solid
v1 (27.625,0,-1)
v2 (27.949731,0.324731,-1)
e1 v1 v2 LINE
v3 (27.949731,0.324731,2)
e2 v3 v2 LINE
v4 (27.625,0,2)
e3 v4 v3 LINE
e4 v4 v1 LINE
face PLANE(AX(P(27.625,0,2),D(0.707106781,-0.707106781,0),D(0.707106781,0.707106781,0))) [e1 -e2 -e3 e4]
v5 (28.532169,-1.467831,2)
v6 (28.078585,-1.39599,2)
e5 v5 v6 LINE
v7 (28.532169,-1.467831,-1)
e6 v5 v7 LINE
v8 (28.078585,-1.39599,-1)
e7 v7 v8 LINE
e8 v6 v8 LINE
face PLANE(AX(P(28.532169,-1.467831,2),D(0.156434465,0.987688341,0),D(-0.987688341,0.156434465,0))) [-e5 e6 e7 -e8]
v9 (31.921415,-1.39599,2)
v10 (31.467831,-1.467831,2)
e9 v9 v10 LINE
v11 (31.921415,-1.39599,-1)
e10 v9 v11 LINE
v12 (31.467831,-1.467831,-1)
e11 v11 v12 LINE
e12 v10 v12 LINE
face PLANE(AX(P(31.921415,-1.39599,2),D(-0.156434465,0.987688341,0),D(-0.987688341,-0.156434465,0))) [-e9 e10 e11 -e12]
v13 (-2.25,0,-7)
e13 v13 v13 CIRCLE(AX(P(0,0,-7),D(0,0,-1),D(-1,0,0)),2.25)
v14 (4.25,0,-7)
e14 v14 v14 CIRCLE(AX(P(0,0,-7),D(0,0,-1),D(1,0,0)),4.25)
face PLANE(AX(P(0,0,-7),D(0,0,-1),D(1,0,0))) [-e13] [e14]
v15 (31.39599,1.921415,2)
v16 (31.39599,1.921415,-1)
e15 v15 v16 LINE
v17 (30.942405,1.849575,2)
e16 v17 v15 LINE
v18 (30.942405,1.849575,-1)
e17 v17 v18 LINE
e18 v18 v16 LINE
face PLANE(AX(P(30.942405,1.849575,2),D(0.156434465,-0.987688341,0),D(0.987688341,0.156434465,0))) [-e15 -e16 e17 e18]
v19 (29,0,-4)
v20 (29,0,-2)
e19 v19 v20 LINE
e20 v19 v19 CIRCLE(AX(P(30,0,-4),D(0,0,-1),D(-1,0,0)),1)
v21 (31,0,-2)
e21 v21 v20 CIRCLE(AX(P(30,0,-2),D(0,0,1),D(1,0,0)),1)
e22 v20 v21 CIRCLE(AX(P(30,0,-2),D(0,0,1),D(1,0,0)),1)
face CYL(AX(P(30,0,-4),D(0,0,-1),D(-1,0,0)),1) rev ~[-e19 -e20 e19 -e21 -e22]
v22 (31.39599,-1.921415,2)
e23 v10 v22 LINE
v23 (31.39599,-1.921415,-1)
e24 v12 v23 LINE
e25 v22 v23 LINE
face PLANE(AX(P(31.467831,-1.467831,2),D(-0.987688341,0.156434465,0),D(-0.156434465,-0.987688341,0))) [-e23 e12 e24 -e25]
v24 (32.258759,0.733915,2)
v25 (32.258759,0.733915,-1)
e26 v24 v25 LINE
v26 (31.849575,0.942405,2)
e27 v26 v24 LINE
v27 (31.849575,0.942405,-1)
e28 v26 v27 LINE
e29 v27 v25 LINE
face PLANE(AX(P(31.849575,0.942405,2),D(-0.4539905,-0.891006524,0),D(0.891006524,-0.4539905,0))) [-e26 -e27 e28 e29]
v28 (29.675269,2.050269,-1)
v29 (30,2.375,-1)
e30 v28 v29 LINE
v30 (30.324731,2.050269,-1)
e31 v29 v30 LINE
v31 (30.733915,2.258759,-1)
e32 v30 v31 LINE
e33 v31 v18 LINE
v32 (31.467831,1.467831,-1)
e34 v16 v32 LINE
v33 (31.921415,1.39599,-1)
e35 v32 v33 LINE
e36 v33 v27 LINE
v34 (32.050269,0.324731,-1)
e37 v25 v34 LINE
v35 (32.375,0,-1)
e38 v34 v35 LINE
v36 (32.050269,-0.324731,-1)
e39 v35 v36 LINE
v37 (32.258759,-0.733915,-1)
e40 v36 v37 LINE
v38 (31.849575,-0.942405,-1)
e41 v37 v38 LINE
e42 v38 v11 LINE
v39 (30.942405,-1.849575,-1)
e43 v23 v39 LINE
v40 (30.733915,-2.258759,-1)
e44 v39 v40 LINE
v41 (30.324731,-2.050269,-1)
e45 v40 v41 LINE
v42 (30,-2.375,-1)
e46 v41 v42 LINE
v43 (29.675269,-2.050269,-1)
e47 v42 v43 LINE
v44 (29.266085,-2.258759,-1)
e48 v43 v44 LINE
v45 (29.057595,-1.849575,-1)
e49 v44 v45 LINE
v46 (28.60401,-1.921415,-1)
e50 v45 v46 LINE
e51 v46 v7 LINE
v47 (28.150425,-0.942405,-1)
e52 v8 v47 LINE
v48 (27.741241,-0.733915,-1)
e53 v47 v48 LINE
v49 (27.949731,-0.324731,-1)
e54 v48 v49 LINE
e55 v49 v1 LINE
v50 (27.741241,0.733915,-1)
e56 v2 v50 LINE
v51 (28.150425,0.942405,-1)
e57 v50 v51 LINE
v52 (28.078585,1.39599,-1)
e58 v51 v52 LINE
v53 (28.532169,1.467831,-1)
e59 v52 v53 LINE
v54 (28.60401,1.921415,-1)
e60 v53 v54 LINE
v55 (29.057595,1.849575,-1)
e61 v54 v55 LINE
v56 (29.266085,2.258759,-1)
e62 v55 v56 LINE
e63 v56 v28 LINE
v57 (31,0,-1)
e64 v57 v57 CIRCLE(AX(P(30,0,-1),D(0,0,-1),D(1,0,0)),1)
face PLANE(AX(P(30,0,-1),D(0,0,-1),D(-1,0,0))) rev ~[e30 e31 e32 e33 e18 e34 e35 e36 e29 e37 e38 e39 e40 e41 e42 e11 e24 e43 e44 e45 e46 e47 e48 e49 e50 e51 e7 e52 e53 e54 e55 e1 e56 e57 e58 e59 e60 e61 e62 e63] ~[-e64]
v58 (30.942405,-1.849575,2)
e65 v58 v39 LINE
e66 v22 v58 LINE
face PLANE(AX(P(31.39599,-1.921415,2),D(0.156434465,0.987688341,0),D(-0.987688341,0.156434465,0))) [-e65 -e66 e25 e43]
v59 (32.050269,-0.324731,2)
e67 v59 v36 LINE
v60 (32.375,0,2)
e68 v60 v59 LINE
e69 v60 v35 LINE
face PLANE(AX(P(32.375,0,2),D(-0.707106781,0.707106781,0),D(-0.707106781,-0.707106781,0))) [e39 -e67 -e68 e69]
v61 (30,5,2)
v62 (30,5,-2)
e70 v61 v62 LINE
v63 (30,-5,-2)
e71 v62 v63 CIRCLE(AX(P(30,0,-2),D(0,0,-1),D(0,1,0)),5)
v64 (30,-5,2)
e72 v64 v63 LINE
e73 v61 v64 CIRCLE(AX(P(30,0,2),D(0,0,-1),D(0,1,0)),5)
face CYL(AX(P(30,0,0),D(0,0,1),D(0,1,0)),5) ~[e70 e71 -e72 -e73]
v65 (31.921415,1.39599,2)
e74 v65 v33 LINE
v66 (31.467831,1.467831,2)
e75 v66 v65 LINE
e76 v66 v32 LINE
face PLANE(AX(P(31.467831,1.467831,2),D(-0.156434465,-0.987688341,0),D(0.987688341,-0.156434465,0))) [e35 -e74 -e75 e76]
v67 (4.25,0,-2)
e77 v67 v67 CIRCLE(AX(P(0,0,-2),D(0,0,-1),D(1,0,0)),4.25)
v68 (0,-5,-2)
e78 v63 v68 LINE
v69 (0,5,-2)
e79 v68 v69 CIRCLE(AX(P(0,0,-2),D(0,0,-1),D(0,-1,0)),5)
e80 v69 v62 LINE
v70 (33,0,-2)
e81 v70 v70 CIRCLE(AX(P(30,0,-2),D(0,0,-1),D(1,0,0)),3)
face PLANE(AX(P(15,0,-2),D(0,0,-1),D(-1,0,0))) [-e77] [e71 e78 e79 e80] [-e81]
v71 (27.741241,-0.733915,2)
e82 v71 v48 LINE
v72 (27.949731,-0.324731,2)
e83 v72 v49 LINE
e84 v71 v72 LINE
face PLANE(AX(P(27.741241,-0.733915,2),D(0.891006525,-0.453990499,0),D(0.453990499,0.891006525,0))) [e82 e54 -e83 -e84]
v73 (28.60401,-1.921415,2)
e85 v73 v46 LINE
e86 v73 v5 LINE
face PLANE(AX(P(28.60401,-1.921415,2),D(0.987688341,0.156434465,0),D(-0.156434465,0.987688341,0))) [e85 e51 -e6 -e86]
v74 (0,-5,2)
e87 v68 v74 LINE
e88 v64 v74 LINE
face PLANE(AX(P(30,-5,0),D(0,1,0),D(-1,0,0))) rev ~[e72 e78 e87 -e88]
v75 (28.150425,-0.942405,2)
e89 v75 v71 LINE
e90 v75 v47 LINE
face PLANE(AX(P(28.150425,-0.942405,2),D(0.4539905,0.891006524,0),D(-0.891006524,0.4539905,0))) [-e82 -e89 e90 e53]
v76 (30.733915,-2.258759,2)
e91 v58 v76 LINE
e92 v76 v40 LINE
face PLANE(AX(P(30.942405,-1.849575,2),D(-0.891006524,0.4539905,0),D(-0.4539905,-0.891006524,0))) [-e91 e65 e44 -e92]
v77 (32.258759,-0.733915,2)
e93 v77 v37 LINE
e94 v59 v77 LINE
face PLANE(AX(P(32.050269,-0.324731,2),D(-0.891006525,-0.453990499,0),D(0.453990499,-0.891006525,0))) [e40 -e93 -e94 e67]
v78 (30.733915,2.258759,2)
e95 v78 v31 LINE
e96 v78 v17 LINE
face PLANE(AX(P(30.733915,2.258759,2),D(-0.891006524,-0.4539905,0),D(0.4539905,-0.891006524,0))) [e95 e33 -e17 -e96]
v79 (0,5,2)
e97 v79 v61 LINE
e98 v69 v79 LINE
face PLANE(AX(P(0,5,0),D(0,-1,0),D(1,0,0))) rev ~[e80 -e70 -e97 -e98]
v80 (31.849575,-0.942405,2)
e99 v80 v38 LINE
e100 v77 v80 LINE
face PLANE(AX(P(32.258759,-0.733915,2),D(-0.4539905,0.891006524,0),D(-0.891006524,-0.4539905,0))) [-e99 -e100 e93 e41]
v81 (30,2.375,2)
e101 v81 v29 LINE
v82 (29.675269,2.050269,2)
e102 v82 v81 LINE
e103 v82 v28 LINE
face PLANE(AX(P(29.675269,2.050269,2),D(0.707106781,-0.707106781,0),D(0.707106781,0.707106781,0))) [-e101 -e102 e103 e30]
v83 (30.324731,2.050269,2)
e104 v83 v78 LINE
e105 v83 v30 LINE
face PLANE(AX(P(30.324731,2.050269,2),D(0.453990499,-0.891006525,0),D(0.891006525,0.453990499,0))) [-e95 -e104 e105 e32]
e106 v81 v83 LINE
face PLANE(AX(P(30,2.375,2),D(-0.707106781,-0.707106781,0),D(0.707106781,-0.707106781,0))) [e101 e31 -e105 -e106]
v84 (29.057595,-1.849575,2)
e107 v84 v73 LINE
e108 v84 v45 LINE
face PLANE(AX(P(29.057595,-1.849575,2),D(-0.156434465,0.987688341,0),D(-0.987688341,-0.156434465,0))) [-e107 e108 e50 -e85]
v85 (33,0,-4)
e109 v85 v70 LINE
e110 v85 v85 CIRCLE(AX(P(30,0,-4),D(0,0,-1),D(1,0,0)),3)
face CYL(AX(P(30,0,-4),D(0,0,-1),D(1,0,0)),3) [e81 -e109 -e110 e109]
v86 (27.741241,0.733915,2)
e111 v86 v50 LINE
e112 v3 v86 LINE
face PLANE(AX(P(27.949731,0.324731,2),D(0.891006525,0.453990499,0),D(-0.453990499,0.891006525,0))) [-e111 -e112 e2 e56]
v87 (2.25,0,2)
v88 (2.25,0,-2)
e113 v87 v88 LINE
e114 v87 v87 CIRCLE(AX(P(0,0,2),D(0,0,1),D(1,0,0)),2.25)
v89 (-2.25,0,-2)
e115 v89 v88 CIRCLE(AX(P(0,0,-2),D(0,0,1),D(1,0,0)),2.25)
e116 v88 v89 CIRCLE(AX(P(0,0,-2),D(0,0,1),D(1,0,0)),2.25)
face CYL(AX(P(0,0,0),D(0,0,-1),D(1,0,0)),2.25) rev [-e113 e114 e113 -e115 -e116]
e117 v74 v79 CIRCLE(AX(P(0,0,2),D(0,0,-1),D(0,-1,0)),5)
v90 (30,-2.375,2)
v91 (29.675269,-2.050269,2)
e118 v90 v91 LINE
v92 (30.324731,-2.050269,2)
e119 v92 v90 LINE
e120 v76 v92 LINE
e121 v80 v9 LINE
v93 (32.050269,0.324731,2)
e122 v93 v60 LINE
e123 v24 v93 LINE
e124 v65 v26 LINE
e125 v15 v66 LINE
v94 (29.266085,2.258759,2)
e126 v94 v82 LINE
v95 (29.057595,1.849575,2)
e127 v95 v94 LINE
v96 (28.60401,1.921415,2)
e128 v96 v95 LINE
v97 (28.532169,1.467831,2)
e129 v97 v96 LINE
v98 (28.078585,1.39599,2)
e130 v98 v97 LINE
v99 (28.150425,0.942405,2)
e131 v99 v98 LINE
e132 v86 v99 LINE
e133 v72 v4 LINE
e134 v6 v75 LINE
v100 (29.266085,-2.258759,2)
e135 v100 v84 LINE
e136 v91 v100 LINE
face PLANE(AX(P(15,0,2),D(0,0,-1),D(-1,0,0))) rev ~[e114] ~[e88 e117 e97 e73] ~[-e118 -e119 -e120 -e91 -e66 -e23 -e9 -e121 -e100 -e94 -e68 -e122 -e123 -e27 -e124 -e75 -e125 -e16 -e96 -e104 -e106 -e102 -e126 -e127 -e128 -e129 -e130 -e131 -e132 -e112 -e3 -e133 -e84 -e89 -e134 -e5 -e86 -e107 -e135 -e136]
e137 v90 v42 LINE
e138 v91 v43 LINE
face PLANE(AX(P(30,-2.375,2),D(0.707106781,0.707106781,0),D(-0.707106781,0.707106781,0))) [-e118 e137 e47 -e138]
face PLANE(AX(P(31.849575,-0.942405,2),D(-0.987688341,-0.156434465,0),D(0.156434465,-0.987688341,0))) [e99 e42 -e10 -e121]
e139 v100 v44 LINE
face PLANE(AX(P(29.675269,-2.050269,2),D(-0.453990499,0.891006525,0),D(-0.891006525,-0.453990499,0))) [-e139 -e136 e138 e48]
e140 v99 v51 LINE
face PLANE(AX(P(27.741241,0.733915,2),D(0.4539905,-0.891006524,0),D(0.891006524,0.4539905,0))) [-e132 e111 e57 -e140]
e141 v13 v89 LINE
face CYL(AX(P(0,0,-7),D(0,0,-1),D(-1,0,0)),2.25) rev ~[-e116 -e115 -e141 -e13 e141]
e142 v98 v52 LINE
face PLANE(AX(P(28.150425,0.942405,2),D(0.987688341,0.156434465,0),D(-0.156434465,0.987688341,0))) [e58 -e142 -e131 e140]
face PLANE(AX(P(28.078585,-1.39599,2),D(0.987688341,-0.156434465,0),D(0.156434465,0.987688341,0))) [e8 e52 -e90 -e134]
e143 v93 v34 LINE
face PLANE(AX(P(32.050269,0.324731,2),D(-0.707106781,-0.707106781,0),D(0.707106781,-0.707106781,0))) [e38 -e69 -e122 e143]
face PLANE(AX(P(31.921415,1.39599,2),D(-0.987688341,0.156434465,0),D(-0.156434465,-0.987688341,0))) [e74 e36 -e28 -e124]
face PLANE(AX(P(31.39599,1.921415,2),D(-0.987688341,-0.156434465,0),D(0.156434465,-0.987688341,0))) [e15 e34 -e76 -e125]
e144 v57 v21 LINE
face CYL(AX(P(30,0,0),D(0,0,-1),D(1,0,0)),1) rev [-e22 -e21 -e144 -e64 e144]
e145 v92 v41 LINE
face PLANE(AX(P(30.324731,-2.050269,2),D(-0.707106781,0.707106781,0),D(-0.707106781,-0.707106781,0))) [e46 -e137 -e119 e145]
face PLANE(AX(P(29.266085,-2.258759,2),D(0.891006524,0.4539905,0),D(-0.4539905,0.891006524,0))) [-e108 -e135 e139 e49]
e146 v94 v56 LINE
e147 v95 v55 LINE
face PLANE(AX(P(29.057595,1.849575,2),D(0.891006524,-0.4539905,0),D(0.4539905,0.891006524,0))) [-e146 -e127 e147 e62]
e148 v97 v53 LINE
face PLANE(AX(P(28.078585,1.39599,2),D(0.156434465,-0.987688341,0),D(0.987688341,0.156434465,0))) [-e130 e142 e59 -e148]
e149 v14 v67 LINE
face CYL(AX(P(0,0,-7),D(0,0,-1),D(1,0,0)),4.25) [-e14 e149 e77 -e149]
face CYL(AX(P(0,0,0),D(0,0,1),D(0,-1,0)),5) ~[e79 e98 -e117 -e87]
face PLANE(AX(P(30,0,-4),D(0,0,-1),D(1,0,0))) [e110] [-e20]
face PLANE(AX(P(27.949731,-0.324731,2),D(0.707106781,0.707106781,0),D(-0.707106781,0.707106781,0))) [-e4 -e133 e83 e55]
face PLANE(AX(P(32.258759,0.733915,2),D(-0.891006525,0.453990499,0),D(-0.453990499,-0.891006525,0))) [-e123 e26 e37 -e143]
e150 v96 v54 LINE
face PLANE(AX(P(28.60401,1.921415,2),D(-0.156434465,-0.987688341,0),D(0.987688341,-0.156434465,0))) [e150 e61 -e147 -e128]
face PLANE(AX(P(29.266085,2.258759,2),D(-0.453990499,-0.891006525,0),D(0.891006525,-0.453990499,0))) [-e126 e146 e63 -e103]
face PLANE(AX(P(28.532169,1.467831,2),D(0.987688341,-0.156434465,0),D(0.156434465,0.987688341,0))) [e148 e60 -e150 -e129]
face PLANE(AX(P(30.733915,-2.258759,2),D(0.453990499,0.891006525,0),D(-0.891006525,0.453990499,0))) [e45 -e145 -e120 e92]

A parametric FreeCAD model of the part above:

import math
import FreeCAD as App
import Part
import Sketcher

V = App.Vector
Q = App.Units.Quantity


def add_polygon(sketch, points):
    """Adds a closed chain of lines whose ends are joined by coincident constraints."""
    first, n = sketch.GeometryCount, len(points)
    for a, b in zip(points, points[1:] + points[:1]):
        sketch.addGeometry(Part.LineSegment(App.Vector(*a, 0), App.Vector(*b, 0)), False)
    for i in range(n):
        sketch.addConstraint(Sketcher.Constraint("Coincident", first + i, 2, first + (i + 1) % n, 1))

doc = App.newDocument("Part")
body = doc.addObject("PartDesign::Body", "Body")

# Sketch on XY plane
sketch1 = body.newObject("Sketcher::SketchObject", "Sketch")
sketch1.AttachmentSupport = (doc.getObject("XY_Plane"), [""])
sketch1.MapMode = "FlatFace"
sketch1.addGeometry(Part.LineSegment(V(30, 5, 0), V(0, 5, 0)), False)
sketch1.addGeometry(Part.ArcOfCircle(Part.Circle(V(0, 0, 0), V(0, 0, 1), 5), math.radians(90), math.radians(270)), False)
sketch1.addGeometry(Part.LineSegment(V(0, -5, 0), V(30, -5, 0)), False)
sketch1.addGeometry(Part.ArcOfCircle(Part.Circle(V(30, 0, 0), V(0, 0, 1), 5), math.radians(-90), math.radians(90)), False)
sketch1.addGeometry(Part.Circle(V(30, 0, 0), V(0, 0, 1), 1), False)
sketch1.addGeometry(Part.Circle(V(0, 0, 0), V(0, 0, 1), 2.25), False)
sketch1.addConstraint(Sketcher.Constraint("Tangent", 0, 2, 1, 1))
sketch1.addConstraint(Sketcher.Constraint("Tangent", 1, 2, 2, 1))
sketch1.addConstraint(Sketcher.Constraint("Tangent", 2, 2, 3, 1))
sketch1.addConstraint(Sketcher.Constraint("Tangent", 3, 2, 0, 1))
sketch1.addConstraint(Sketcher.Constraint("Horizontal", 0))
sketch1.addConstraint(Sketcher.Constraint("Horizontal", 2))
sketch1.addConstraint(Sketcher.Constraint("Coincident", 1, 3, -1, 1))
sketch1.addConstraint(Sketcher.Constraint("Coincident", 5, 3, -1, 1))
sketch1.addConstraint(Sketcher.Constraint("Coincident", 4, 3, 3, 3))
sketch1.addConstraint(Sketcher.Constraint("Diameter", 4, 2.0))
sketch1.addConstraint(Sketcher.Constraint("Radius", 1, 5.0))
sketch1.addConstraint(Sketcher.Constraint("Diameter", 5, 4.5))
sketch1.addConstraint(Sketcher.Constraint("DistanceX", 0, 2, 0, 1, 30.0))
pad1 = body.newObject("PartDesign::Pad", "Pad")
pad1.Profile = sketch1
pad1.Length = 4
pad1.Midplane = True

# Sketch on XY plane
sketch2 = body.newObject("Sketcher::SketchObject", "Sketch001")
sketch2.AttachmentSupport = (doc.getObject("XY_Plane"), [""])
sketch2.MapMode = "FlatFace"
sketch2.AttachmentOffset = App.Placement(V(0, 0, -4), App.Rotation())
sketch2.addGeometry(Part.Circle(V(30, 0, 0), V(0, 0, 1), 3), False)
sketch2.addGeometry(Part.Circle(V(30, 0, 0), V(0, 0, 1), 1), False)
sketch2.addConstraint(Sketcher.Constraint("Coincident", 1, 3, 0, 3))
sketch2.addConstraint(Sketcher.Constraint("PointOnObject", 0, 3, -1))
sketch2.addConstraint(Sketcher.Constraint("Diameter", 0, 6.0))
sketch2.addConstraint(Sketcher.Constraint("Diameter", 1, 2.0))
sketch2.addConstraint(Sketcher.Constraint("DistanceX", -1, 1, 0, 3, 30.0))
pad2 = body.newObject("PartDesign::Pad", "Pad001")
pad2.Profile = sketch2
pad2.Length = 2

# Sketch on XY plane
sketch3 = body.newObject("Sketcher::SketchObject", "Sketch002")
sketch3.AttachmentSupport = (doc.getObject("XY_Plane"), [""])
sketch3.MapMode = "FlatFace"
sketch3.AttachmentOffset = App.Placement(V(0, 0, -7), App.Rotation())
sketch3.addGeometry(Part.Circle(V(0, 0, 0), V(0, 0, 1), 4.25), False)
sketch3.addGeometry(Part.Circle(V(0, 0, 0), V(0, 0, 1), 2.25), False)
sketch3.addConstraint(Sketcher.Constraint("Coincident", 0, 3, -1, 1))
sketch3.addConstraint(Sketcher.Constraint("Coincident", 1, 3, -1, 1))
sketch3.addConstraint(Sketcher.Constraint("Diameter", 0, 8.5))
sketch3.addConstraint(Sketcher.Constraint("Diameter", 1, 4.5))
pad3 = body.newObject("PartDesign::Pad", "Pad002")
pad3.Profile = sketch3
pad3.Length = 5

# Sketch on XY plane
sketch4 = body.newObject("Sketcher::SketchObject", "Sketch003")
sketch4.AttachmentSupport = (doc.getObject("XY_Plane"), [""])
sketch4.MapMode = "FlatFace"
sketch4.AttachmentOffset = App.Placement(V(0, 0, 2), App.Rotation())
add_polygon(sketch4, [(30, 2.375), (29.675269, 2.050269), (29.266085, 2.258759), (29.057595, 1.849575), (28.60401, 1.921415), (28.532169, 1.467831), (28.078585, 1.39599), (28.150425, 0.942405), (27.741241, 0.733915), (27.949731, 0.324731), (27.625, 0), (27.949731, -0.324731), (27.741241, -0.733915), (28.150425, -0.942405), (28.078585, -1.39599), (28.532169, -1.467831), (28.60401, -1.921415), (29.057595, -1.849575), (29.266085, -2.258759), (29.675269, -2.050269), (30, -2.375), (30.324731, -2.050269), (30.733915, -2.258759), (30.942405, -1.849575), (31.39599, -1.921415), (31.467831, -1.467831), (31.921415, -1.39599), (31.849575, -0.942405), (32.258759, -0.733915), (32.050269, -0.324731), (32.375, 0), (32.050269, 0.324731), (32.258759, 0.733915), (31.849575, 0.942405), (31.921415, 1.39599), (31.467831, 1.467831), (31.39599, 1.921415), (30.942405, 1.849575), (30.733915, 2.258759), (30.324731, 2.050269)])  # lines 0-39
sketch4.addConstraint(Sketcher.Constraint("Symmetric", 8, 2, 10, 2, -1))
sketch4.addConstraint(Sketcher.Constraint("Symmetric", 7, 2, 11, 2, -1))
sketch4.addConstraint(Sketcher.Constraint("Symmetric", 6, 2, 12, 2, -1))
sketch4.addConstraint(Sketcher.Constraint("Symmetric", 5, 2, 13, 2, -1))
sketch4.addConstraint(Sketcher.Constraint("Symmetric", 4, 2, 14, 2, -1))
sketch4.addConstraint(Sketcher.Constraint("Symmetric", 3, 2, 15, 2, -1))
sketch4.addConstraint(Sketcher.Constraint("Symmetric", 2, 2, 16, 2, -1))
sketch4.addConstraint(Sketcher.Constraint("Symmetric", 1, 2, 17, 2, -1))
sketch4.addConstraint(Sketcher.Constraint("Symmetric", 0, 2, 18, 2, -1))
sketch4.addConstraint(Sketcher.Constraint("Symmetric", 28, 2, 30, 2, -1))
sketch4.addConstraint(Sketcher.Constraint("Symmetric", 27, 2, 31, 2, -1))
sketch4.addConstraint(Sketcher.Constraint("Symmetric", 26, 2, 32, 2, -1))
sketch4.addConstraint(Sketcher.Constraint("Symmetric", 25, 2, 33, 2, -1))
sketch4.addConstraint(Sketcher.Constraint("Symmetric", 24, 2, 34, 2, -1))
sketch4.addConstraint(Sketcher.Constraint("Symmetric", 23, 2, 35, 2, -1))
sketch4.addConstraint(Sketcher.Constraint("Symmetric", 22, 2, 36, 2, -1))
sketch4.addConstraint(Sketcher.Constraint("Symmetric", 21, 2, 37, 2, -1))
sketch4.addConstraint(Sketcher.Constraint("Symmetric", 20, 2, 38, 2, -1))
sketch4.addConstraint(Sketcher.Constraint("Symmetric", 19, 2, 39, 2, -1))
sketch4.addConstraint(Sketcher.Constraint("PointOnObject", 9, 2, -1))
sketch4.addConstraint(Sketcher.Constraint("PointOnObject", 29, 2, -1))
sketch4.addConstraint(Sketcher.Constraint("Perpendicular", 1, 2))
sketch4.addConstraint(Sketcher.Constraint("Perpendicular", 3, 4))
sketch4.addConstraint(Sketcher.Constraint("Perpendicular", 5, 6))
sketch4.addConstraint(Sketcher.Constraint("Perpendicular", 7, 8))
sketch4.addConstraint(Sketcher.Constraint("Parallel", 0, 9))
sketch4.addConstraint(Sketcher.Constraint("Perpendicular", 9, 10))
sketch4.addConstraint(Sketcher.Constraint("Parallel", 2, 11))
sketch4.addConstraint(Sketcher.Constraint("Parallel", 4, 13))
sketch4.addConstraint(Sketcher.Constraint("Perpendicular", 19, 20))
sketch4.addConstraint(Sketcher.Constraint("Parallel", 12, 21))
sketch4.addConstraint(Sketcher.Constraint("Perpendicular", 21, 22))
sketch4.addConstraint(Sketcher.Constraint("Parallel", 14, 23))
sketch4.addConstraint(Sketcher.Constraint("Perpendicular", 23, 24))
sketch4.addConstraint(Sketcher.Constraint("Parallel", 16, 25))
sketch4.addConstraint(Sketcher.Constraint("Perpendicular", 25, 26))
sketch4.addConstraint(Sketcher.Constraint("Parallel", 18, 27))
sketch4.addConstraint(Sketcher.Constraint("Perpendicular", 27, 28))
sketch4.addConstraint(Sketcher.Constraint("Parallel", 20, 29))
sketch4.addConstraint(Sketcher.Constraint("Horizontal", 18, 2, 20, 2))
sketch4.addConstraint(Sketcher.Constraint("Horizontal", 17, 2, 21, 2))
sketch4.addConstraint(Sketcher.Constraint("Horizontal", 16, 2, 22, 2))
sketch4.addConstraint(Sketcher.Constraint("Horizontal", 15, 2, 23, 2))
sketch4.addConstraint(Sketcher.Constraint("Horizontal", 14, 2, 24, 2))
sketch4.addConstraint(Sketcher.Constraint("Horizontal", 13, 2, 25, 2))
sketch4.addConstraint(Sketcher.Constraint("Horizontal", 12, 2, 26, 2))
sketch4.addConstraint(Sketcher.Constraint("Horizontal", 11, 2, 27, 2))
sketch4.addConstraint(Sketcher.Constraint("Horizontal", 10, 2, 28, 2))
sketch4.addConstraint(Sketcher.Constraint("Equal", 0, 1))
sketch4.addConstraint(Sketcher.Constraint("Equal", 1, 2))
sketch4.addConstraint(Sketcher.Constraint("Equal", 2, 3))
sketch4.addConstraint(Sketcher.Constraint("Equal", 3, 4))
sketch4.addConstraint(Sketcher.Constraint("Equal", 4, 5))
sketch4.addConstraint(Sketcher.Constraint("Equal", 5, 6))
sketch4.addConstraint(Sketcher.Constraint("Equal", 6, 7))
sketch4.addConstraint(Sketcher.Constraint("Equal", 7, 8))
sketch4.addConstraint(Sketcher.Constraint("Equal", 8, 9))
sketch4.addConstraint(Sketcher.Constraint("Angle", 1, Q("153 deg")))
sketch4.addConstraint(Sketcher.Constraint("Angle", 3, Q("171 deg")))
sketch4.addConstraint(Sketcher.Constraint("DistanceX", -1, 1, 19, 2, 30.0))
sketch4.addConstraint(Sketcher.Constraint("DistanceX", -1, 1, 9, 2, 27.625))
pocket1 = body.newObject("PartDesign::Pocket", "Pocket")
pocket1.Profile = sketch4
pocket1.Length = 3

doc.recompute()
